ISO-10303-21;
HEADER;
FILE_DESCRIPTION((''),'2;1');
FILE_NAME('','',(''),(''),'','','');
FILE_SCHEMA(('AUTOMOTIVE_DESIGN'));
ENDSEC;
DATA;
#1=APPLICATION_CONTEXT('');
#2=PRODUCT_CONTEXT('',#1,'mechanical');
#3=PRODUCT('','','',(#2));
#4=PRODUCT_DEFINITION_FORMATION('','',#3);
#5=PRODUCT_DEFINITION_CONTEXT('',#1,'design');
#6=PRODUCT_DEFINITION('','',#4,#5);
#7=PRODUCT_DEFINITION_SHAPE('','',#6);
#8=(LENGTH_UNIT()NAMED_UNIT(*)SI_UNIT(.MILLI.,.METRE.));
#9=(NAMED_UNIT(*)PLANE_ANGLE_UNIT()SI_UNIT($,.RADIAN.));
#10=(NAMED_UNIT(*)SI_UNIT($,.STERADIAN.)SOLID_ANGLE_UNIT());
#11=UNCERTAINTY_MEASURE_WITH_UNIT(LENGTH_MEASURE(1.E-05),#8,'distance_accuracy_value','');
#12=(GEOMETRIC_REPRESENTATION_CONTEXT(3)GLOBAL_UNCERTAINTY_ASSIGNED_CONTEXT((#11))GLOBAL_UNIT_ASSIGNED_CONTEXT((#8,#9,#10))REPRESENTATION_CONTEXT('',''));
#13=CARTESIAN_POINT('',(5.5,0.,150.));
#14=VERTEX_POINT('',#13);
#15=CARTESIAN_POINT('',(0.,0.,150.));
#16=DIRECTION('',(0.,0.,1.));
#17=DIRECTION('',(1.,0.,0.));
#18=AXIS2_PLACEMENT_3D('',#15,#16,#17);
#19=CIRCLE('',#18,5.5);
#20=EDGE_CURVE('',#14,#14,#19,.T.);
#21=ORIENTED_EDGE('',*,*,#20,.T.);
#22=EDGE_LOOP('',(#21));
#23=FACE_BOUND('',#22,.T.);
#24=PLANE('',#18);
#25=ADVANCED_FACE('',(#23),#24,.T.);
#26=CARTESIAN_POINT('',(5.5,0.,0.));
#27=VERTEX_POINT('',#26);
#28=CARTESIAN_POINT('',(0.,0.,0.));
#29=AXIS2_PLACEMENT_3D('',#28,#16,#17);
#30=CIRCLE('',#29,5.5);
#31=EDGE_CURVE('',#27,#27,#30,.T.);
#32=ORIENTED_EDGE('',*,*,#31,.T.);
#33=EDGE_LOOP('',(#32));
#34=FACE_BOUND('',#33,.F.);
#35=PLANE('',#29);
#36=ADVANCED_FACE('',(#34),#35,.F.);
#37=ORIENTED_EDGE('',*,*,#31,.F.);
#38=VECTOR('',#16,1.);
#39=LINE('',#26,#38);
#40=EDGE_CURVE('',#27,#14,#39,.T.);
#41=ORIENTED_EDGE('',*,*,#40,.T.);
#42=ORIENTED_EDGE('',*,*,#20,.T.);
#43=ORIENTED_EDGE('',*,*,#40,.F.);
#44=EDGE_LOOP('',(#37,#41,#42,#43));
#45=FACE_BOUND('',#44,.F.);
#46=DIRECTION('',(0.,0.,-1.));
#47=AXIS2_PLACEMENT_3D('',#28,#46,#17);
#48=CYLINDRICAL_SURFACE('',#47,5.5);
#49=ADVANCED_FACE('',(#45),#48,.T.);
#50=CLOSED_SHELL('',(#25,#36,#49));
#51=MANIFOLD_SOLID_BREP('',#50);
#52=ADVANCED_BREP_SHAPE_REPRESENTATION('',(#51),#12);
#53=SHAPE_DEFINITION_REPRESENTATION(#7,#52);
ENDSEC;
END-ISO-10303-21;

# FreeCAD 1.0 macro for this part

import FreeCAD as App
import Part
import Sketcher

V = App.Vector
Q = App.Units.Quantity

doc = App.newDocument("Part")
body = doc.addObject("PartDesign::Body", "Body")

# Sketch on XY plane
sketch1 = body.newObject("Sketcher::SketchObject", "Sketch")
sketch1.AttachmentSupport = (doc.getObject("XY_Plane"), [""])
sketch1.MapMode = "FlatFace"
sketch1.addGeometry(Part.Circle(V(0, 0, 0), V(0, 0, 1), 5.5), False)
sketch1.addConstraint(Sketcher.Constraint("Coincident", 0, 3, -1, 1))
sketch1.addConstraint(Sketcher.Constraint("Diameter", 0, Q("11 mm")))
pad1 = body.newObject("PartDesign::Pad", "Pad")
pad1.Profile = sketch1
pad1.Length = 150

doc.recompute()
